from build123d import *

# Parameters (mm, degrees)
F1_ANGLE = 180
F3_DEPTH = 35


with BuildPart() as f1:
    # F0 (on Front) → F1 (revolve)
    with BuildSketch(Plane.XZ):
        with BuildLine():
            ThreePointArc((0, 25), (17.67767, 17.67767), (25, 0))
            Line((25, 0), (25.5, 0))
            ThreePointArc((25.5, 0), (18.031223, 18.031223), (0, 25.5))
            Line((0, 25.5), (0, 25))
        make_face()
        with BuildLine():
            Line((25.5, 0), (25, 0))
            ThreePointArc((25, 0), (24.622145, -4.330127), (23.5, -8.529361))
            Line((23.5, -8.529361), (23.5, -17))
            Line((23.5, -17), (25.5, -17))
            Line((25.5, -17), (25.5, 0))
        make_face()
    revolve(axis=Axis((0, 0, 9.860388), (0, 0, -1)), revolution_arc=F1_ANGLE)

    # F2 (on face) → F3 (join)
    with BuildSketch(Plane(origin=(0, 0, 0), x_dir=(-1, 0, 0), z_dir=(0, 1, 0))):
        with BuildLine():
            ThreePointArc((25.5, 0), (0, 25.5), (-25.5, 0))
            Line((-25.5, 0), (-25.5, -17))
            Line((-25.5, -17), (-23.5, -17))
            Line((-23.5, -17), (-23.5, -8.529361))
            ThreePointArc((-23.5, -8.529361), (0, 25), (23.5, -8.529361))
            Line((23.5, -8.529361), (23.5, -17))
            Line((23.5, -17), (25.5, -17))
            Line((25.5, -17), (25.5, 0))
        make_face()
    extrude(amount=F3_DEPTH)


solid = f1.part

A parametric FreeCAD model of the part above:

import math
import FreeCAD as App
import Part
import Sketcher
from FreeCAD import Vector
Q = App.Units.Quantity

doc = App.newDocument("Part")
body = doc.addObject("PartDesign::Body", "Body")

# Sketch on XZ plane
sketch1 = body.newObject("Sketcher::SketchObject", "Sketch")
sketch1.AttachmentSupport = (doc.getObject("XZ_Plane"), [""])
sketch1.MapMode = "FlatFace"
sketch1.addGeometry(Part.ArcOfCircle(Part.Circle(Vector(0, 0, 0), Vector(0, 0, 1), 25), math.radians(0), math.radians(90)), False)
sketch1.addGeometry(Part.ArcOfCircle(Part.Circle(Vector(0, 0, 0), Vector(0, 0, 1), 25), math.radians(-19.95), math.radians(0)), False)
sketch1.addGeometry(Part.LineSegment(Vector(23.5, -8.5, 0), Vector(23.5, -17, 0)), False)
sketch1.addGeometry(Part.LineSegment(Vector(23.5, -17, 0), Vector(25.5, -17, 0)), False)
sketch1.addGeometry(Part.LineSegment(Vector(25.5, -17, 0), Vector(25.5, 0, 0)), False)
sketch1.addGeometry(Part.ArcOfCircle(Part.Circle(Vector(0, 0, 0), Vector(0, 0, 1), 25.5), math.radians(0), math.radians(90)), False)
sketch1.addGeometry(Part.LineSegment(Vector(0, 25.5, 0), Vector(0, 25, 0)), False)
sketch1.addConstraint(Sketcher.Constraint("Tangent", 0, 1, 1, 2))
sketch1.addConstraint(Sketcher.Constraint("Coincident", 1, 1, 2, 1))
sketch1.addConstraint(Sketcher.Constraint("Coincident", 2, 2, 3, 1))
sketch1.addConstraint(Sketcher.Constraint("Coincident", 3, 2, 4, 1))
sketch1.addConstraint(Sketcher.Constraint("Tangent", 4, 2, 5, 1))
sketch1.addConstraint(Sketcher.Constraint("Coincident", 5, 2, 6, 1))
sketch1.addConstraint(Sketcher.Constraint("Coincident", 6, 2, 0, 2))
sketch1.addConstraint(Sketcher.Constraint("Vertical", 2))
sketch1.addConstraint(Sketcher.Constraint("Horizontal", 3))
sketch1.addConstraint(Sketcher.Constraint("Vertical", 4))
sketch1.addConstraint(Sketcher.Constraint("Vertical", 6))
sketch1.addConstraint(Sketcher.Constraint("Coincident", 0, 3, -1, 1))
sketch1.addConstraint(Sketcher.Constraint("Coincident", 5, 3, -1, 1))
sketch1.addConstraint(Sketcher.Constraint("PointOnObject", 0, 1, -1))
sketch1.addConstraint(Sketcher.Constraint("PointOnObject", 5, 2, -2))
sketch1.addConstraint(Sketcher.Constraint("Radius", 0, Q("24.999998 mm")))
sketch1.addConstraint(Sketcher.Constraint("Radius", 5, Q("25.5 mm")))
sketch1.addConstraint(Sketcher.Constraint("DistanceX", 3, 1, 3, 2, Q("2 mm")))
sketch1.addConstraint(Sketcher.Constraint("DistanceY", 4, 1, 4, 2, Q("17 mm")))
sketch1.addConstraint(Sketcher.Constraint("Radius", 1, Q("24.999968 mm")))
revolution = body.newObject("PartDesign::Revolution", "Revolution")
revolution.Profile = sketch1
revolution.ReferenceAxis = (sketch1, ["V_Axis"])
revolution.Angle = 180
revolution.Reversed = True

# Sketch on XZ plane
sketch2 = body.newObject("Sketcher::SketchObject", "Sketch001")
sketch2.AttachmentSupport = (doc.getObject("XZ_Plane"), [""])
sketch2.MapMode = "FlatFace"
sketch2.addGeometry(Part.ArcOfCircle(Part.Circle(Vector(0, 0, 0), Vector(0, 0, 1), 25.5), math.radians(0), math.radians(180)), False)
sketch2.addGeometry(Part.LineSegment(Vector(25.5, 0, 0), Vector(25.5, -17, 0)), False)
sketch2.addGeometry(Part.LineSegment(Vector(25.5, -17, 0), Vector(23.5, -17, 0)), False)
sketch2.addGeometry(Part.LineSegment(Vector(23.5, -17, 0), Vector(23.5, -8.5, 0)), False)
sketch2.addGeometry(Part.ArcOfCircle(Part.Circle(Vector(0, 0, 0), Vector(0, 0, 1), 25), math.radians(-20), math.radians(200)), False)
sketch2.addGeometry(Part.LineSegment(Vector(-23.5, -8.5, 0), Vector(-23.5, -17, 0)), False)
sketch2.addGeometry(Part.LineSegment(Vector(-23.5, -17, 0), Vector(-25.5, -17, 0)), False)
sketch2.addGeometry(Part.LineSegment(Vector(-25.5, -17, 0), Vector(-25.5, 0, 0)), False)
sketch2.addConstraint(Sketcher.Constraint("Tangent", 0, 1, 1, 1))
sketch2.addConstraint(Sketcher.Constraint("Coincident", 1, 2, 2, 1))
sketch2.addConstraint(Sketcher.Constraint("Coincident", 2, 2, 3, 1))
sketch2.addConstraint(Sketcher.Constraint("Coincident", 3, 2, 4, 1))
sketch2.addConstraint(Sketcher.Constraint("Coincident", 4, 2, 5, 1))
sketch2.addConstraint(Sketcher.Constraint("Coincident", 5, 2, 6, 1))
sketch2.addConstraint(Sketcher.Constraint("Coincident", 6, 2, 7, 1))
sketch2.addConstraint(Sketcher.Constraint("Tangent", 7, 2, 0, 2))
sketch2.addConstraint(Sketcher.Constraint("Vertical", 1))
sketch2.addConstraint(Sketcher.Constraint("Horizontal", 2))
sketch2.addConstraint(Sketcher.Constraint("Vertical", 3))
sketch2.addConstraint(Sketcher.Constraint("Vertical", 5))
sketch2.addConstraint(Sketcher.Constraint("Horizontal", 6))
sketch2.addConstraint(Sketcher.Constraint("Vertical", 7))
sketch2.addConstraint(Sketcher.Constraint("Coincident", 0, 3, -1, 1))
sketch2.addConstraint(Sketcher.Constraint("Coincident", 4, 3, -1, 1))
sketch2.addConstraint(Sketcher.Constraint("Symmetric", 2, 2, 5, 2, -2))
sketch2.addConstraint(Sketcher.Constraint("Radius", 4, Q("25 mm")))
sketch2.addConstraint(Sketcher.Constraint("Radius", 0, Q("25.5 mm")))
sketch2.addConstraint(Sketcher.Constraint("DistanceX", 2, 2, 2, 1, Q("2 mm")))
sketch2.addConstraint(Sketcher.Constraint("DistanceY", 1, 2, 1, 1, Q("17 mm")))
pad1 = body.newObject("PartDesign::Pad", "Pad")
pad1.Profile = sketch2
pad1.Length = 35
pad1.Reversed = True

doc.recompute()
